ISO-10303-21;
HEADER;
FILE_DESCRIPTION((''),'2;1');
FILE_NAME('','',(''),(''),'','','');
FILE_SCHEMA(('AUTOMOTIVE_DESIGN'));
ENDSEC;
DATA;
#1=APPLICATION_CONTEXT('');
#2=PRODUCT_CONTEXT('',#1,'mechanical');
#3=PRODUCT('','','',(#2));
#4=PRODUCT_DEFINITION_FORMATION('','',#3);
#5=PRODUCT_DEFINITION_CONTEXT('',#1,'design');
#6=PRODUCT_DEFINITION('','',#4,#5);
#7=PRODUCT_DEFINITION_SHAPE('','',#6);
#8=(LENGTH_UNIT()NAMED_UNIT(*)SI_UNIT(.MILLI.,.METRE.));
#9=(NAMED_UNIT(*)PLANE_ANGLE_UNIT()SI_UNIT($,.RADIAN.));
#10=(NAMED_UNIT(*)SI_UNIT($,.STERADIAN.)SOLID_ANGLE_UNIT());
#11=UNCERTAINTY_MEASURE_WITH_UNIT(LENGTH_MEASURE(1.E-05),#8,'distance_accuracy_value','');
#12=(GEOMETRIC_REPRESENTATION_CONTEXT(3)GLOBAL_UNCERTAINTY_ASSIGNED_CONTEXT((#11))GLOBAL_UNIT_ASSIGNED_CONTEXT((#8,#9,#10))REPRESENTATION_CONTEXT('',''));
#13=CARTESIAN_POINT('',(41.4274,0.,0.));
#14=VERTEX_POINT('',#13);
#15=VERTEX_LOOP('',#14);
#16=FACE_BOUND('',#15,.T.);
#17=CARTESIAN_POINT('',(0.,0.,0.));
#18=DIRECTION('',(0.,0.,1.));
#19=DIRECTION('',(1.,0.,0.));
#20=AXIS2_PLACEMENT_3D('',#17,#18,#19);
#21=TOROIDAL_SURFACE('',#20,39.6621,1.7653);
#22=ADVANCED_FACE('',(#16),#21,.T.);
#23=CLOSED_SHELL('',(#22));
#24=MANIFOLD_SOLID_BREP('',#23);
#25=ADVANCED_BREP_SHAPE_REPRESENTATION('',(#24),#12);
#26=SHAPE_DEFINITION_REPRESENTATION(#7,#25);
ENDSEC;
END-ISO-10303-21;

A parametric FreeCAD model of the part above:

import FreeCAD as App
import Part
import Sketcher
Q = App.Units.Quantity

doc = App.newDocument("Part")
body = doc.addObject("PartDesign::Body", "Body")

# Sketch on YZ plane
sketch1 = body.newObject("Sketcher::SketchObject", "Sketch")
sketch1.AttachmentSupport = (doc.getObject("YZ_Plane"), [""])
sketch1.MapMode = "FlatFace"
sketch1.addGeometry(Part.Circle(App.Vector(-39.7, 0, 0), App.Vector(0, 0, 1), 1.8), False)
sketch1.addConstraint([
    Sketcher.Constraint("PointOnObject", 0, 3, -1),
    Sketcher.Constraint("Diameter", 0, Q("0.139 in")),
    Sketcher.Constraint("DistanceX", 0, 3, -1, 1, Q("1.5615 in")),
])
revolution = body.newObject("PartDesign::Revolution", "Revolution")
revolution.Profile = sketch1
revolution.ReferenceAxis = (sketch1, ["V_Axis"])
revolution.Angle = 360

doc.recompute()
